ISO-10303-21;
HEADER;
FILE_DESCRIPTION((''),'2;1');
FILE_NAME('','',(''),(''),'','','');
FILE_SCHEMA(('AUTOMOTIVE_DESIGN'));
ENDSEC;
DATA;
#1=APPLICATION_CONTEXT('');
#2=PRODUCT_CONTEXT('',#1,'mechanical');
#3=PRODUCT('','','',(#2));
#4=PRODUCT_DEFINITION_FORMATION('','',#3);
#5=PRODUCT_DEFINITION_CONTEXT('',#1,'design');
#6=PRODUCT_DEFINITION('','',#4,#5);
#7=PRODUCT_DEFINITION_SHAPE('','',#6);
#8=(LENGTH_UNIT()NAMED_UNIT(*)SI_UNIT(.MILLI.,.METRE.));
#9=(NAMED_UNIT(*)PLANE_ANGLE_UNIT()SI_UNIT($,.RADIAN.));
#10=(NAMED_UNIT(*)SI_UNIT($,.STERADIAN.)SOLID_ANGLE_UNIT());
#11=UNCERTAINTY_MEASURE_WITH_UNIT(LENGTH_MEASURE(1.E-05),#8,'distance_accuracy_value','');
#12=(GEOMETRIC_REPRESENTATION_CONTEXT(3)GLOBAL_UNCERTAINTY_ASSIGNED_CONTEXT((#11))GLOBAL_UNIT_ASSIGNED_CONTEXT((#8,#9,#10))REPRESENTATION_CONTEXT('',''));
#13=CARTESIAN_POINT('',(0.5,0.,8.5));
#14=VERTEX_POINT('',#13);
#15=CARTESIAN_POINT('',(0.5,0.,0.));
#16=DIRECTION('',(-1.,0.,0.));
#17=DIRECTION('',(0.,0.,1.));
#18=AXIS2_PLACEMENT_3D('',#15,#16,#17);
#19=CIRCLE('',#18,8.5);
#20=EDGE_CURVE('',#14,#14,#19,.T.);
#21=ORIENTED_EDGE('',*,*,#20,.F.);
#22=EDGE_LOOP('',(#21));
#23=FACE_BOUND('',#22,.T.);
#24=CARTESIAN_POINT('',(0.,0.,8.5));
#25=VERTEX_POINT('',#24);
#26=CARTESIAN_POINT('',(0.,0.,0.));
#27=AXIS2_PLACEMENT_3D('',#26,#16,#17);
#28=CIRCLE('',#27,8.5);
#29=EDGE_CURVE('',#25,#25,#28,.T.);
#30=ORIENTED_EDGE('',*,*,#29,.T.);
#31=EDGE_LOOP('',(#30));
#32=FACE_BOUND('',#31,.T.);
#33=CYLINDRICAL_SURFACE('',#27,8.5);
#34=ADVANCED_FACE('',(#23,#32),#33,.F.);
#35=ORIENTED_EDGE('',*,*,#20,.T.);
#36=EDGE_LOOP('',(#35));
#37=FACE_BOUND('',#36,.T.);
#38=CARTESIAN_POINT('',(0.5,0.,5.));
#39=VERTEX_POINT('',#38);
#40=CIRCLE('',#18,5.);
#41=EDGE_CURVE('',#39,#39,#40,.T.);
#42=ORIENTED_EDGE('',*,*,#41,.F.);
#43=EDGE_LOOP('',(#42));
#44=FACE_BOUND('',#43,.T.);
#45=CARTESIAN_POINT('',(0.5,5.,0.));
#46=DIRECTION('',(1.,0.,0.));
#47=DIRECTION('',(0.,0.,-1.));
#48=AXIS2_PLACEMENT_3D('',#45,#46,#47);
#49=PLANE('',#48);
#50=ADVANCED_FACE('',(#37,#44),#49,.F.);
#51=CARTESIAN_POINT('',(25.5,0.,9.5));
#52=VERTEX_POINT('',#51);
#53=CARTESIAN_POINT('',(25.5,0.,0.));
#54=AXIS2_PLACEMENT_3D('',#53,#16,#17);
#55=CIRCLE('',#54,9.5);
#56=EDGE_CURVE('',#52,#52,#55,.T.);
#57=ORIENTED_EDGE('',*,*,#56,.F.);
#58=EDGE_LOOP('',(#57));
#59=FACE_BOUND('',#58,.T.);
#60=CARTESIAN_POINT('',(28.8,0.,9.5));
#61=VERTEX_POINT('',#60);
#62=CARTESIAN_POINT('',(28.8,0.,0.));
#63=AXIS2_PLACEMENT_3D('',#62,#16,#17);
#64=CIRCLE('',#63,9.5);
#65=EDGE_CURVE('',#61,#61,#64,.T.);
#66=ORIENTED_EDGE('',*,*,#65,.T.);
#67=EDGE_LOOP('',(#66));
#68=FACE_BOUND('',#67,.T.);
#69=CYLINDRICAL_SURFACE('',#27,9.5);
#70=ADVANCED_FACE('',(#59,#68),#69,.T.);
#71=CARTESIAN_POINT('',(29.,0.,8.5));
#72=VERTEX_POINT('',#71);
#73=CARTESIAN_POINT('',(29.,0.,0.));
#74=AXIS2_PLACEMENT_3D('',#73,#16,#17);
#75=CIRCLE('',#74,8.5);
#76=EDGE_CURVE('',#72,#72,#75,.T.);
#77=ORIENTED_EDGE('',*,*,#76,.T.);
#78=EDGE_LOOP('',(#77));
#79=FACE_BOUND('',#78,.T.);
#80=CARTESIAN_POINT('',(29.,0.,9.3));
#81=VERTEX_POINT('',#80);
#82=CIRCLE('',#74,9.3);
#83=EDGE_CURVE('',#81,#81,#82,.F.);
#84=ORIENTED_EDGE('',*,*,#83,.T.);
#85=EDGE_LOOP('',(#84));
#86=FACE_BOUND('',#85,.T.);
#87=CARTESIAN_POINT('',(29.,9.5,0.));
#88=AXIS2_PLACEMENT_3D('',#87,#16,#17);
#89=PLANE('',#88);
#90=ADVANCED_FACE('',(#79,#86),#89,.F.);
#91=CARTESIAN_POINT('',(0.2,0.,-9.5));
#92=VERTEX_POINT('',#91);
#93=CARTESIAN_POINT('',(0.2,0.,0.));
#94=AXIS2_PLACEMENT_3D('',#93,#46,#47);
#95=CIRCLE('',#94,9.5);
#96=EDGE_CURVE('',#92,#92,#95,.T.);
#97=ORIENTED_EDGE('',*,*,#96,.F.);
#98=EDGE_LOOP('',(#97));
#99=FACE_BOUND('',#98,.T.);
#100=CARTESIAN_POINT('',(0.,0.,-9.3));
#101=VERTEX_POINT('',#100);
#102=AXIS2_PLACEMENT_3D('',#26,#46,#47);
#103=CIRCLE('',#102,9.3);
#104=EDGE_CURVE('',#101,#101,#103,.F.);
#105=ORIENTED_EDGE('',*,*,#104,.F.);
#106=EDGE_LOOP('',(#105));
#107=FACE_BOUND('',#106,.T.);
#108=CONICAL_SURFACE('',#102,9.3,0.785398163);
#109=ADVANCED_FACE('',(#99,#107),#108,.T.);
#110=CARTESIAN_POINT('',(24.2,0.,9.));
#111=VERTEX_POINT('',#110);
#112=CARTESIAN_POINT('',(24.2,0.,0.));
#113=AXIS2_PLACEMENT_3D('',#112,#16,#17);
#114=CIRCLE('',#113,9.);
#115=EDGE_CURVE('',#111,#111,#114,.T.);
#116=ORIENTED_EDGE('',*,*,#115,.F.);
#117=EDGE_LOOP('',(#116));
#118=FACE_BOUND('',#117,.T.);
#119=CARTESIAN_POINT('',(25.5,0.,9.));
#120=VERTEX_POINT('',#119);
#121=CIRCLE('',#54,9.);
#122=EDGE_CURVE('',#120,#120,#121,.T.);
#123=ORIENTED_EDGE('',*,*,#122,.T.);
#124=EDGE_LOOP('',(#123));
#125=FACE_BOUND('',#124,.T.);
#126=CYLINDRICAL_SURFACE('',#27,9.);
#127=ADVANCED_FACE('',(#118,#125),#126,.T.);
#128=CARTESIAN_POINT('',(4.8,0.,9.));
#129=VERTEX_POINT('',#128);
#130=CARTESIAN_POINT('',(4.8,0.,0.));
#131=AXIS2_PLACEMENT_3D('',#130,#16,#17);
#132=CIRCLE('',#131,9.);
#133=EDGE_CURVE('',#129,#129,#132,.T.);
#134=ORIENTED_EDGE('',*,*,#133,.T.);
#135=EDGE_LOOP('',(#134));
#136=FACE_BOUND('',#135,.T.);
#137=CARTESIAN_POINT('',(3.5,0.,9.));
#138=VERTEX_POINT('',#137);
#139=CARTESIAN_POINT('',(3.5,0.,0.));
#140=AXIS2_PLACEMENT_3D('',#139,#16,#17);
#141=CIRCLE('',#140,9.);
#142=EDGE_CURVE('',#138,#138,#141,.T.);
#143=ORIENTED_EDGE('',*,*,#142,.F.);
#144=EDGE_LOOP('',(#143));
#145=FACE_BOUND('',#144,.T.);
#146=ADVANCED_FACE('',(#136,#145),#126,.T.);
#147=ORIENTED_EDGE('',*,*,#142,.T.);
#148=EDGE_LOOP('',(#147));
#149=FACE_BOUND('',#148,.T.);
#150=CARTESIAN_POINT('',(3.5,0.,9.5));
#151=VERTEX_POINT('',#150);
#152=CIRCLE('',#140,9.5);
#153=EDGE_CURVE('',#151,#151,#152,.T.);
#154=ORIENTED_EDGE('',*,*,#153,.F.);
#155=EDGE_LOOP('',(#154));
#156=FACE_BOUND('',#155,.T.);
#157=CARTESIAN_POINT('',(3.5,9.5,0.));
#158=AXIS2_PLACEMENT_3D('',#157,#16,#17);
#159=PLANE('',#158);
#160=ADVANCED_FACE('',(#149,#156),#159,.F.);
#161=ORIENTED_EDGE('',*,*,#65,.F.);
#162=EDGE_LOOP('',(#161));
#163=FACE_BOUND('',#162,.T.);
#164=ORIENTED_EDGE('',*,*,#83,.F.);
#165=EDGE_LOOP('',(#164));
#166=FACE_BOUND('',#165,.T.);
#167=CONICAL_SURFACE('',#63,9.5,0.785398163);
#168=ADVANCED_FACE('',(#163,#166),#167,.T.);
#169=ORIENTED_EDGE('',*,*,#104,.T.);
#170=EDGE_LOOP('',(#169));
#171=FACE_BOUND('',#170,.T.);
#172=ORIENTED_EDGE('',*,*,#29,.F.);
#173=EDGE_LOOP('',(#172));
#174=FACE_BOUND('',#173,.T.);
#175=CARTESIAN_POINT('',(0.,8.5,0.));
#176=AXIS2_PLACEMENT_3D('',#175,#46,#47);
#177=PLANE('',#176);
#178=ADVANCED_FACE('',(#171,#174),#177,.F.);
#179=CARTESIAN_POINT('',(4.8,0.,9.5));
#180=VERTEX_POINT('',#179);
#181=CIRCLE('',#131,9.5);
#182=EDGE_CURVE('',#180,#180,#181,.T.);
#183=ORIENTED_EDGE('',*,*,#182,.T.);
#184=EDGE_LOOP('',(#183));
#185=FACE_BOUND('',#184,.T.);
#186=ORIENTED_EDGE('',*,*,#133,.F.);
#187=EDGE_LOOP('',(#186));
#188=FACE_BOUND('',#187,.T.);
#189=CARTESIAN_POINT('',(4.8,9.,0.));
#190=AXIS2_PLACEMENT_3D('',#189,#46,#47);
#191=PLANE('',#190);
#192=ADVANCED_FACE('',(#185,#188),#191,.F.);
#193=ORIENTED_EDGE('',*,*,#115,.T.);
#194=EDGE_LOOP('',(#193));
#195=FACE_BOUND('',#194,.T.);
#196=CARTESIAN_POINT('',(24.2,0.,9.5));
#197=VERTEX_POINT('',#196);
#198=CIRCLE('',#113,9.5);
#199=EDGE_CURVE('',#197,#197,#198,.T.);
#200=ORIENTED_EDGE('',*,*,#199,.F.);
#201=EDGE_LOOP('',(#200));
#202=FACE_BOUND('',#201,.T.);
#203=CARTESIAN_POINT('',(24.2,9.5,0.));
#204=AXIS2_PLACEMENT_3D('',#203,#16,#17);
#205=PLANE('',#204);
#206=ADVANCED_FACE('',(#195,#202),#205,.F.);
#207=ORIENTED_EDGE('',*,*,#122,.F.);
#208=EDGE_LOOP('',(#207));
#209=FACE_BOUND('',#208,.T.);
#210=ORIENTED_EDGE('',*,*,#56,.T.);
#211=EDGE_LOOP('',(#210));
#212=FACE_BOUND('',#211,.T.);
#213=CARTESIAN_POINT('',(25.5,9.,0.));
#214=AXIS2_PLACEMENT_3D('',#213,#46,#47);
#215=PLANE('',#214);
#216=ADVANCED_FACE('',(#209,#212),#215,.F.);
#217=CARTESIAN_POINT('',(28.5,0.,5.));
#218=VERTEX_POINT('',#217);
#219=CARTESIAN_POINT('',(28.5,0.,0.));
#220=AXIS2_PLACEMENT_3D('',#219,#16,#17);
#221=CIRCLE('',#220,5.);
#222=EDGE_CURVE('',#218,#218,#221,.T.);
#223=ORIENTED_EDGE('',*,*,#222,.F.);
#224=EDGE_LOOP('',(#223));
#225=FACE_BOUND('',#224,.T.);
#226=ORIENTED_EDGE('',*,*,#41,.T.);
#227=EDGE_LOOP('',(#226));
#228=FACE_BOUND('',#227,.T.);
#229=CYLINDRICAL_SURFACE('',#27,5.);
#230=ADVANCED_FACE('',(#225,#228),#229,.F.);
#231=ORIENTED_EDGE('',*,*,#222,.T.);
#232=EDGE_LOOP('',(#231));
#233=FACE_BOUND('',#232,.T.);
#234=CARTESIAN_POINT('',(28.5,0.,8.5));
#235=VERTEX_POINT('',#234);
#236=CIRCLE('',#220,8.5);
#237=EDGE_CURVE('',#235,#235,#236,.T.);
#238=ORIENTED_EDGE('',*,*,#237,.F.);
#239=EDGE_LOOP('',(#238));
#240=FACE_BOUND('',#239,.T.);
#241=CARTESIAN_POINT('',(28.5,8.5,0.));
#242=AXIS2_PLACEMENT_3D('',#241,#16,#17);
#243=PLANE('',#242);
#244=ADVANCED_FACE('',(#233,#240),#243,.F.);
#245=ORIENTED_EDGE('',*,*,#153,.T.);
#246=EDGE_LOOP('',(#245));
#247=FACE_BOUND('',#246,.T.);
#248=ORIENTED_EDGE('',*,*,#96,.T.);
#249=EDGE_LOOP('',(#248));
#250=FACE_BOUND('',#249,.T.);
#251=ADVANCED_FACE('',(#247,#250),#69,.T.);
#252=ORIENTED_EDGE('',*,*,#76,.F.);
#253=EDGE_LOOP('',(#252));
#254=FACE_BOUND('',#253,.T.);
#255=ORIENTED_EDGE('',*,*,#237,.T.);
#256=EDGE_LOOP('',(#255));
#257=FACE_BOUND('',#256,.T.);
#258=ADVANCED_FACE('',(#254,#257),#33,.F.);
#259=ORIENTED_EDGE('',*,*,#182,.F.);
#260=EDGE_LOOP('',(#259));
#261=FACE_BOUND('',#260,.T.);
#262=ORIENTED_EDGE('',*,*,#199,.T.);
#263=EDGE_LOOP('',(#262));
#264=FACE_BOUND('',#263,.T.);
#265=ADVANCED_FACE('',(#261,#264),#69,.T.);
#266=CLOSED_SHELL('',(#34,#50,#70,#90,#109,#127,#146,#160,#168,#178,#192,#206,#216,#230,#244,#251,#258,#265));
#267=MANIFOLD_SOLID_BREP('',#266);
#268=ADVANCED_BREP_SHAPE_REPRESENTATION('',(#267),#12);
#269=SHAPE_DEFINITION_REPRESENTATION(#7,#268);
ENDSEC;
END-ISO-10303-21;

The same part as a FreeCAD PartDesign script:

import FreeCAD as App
import Part
import Sketcher

V = App.Vector
Q = App.Units.Quantity


def edges_at(feature, points):
    """Names of the edges that pass closest to the given points."""
    edges = feature.Shape.Edges
    near = lambda p: min(range(len(edges)), key=lambda i: edges[i].distToShape(Part.Vertex(*p))[0])
    return sorted({f"Edge{near(p) + 1}" for p in points})


def add_polygon(sketch, points):
    """Adds a closed chain of lines whose ends are joined by coincident constraints."""
    first, n = sketch.GeometryCount, len(points)
    for a, b in zip(points, points[1:] + points[:1]):
        sketch.addGeometry(Part.LineSegment(App.Vector(*a, 0), App.Vector(*b, 0)), False)
    for i in range(n):
        sketch.addConstraint(Sketcher.Constraint("Coincident", first + i, 2, first + (i + 1) % n, 1))

doc = App.newDocument("Part")
body = doc.addObject("PartDesign::Body", "Body")

sketch1 = body.newObject("Sketcher::SketchObject", "Sketch")
sketch1.AttachmentSupport = (doc.getObject("XY_Plane"), [""])
sketch1.MapMode = "FlatFace"
add_polygon(sketch1, [(0.5, 8.5), (0.5, 5), (28.5, 5), (28.5, 8.5), (29, 8.5), (29, 9.5), (25.5, 9.5), (25.5, 9), (24.2, 9), (24.2, 9.5), (4.8, 9.5), (4.8, 9), (3.5, 9), (3.5, 9.5), (0, 9.5), (0, 8.5)])
sketch1.addConstraint([
    Sketcher.Constraint("Vertical", 0),
    Sketcher.Constraint("Horizontal", 1),
    Sketcher.Constraint("Vertical", 2),
    Sketcher.Constraint("Horizontal", 3),
    Sketcher.Constraint("Vertical", 4),
    Sketcher.Constraint("Horizontal", 5),
    Sketcher.Constraint("Vertical", 6),
    Sketcher.Constraint("Horizontal", 7),
    Sketcher.Constraint("Vertical", 8),
    Sketcher.Constraint("Horizontal", 9),
    Sketcher.Constraint("Vertical", 10),
    Sketcher.Constraint("Horizontal", 11),
    Sketcher.Constraint("Vertical", 12),
    Sketcher.Constraint("Horizontal", 13),
    Sketcher.Constraint("Vertical", 14),
    Sketcher.Constraint("Horizontal", 15),
    Sketcher.Constraint("PointOnObject", 13, 2, -2),
    Sketcher.Constraint("Horizontal", 5, 2, 8, 2),
    Sketcher.Constraint("Horizontal", 7, 2, 10, 2),
    Sketcher.Constraint("Horizontal", 9, 2, 12, 2),
    Sketcher.Constraint("Horizontal", 3, 2, 14, 2),
    Sketcher.Constraint("Equal", 7, 11),
    Sketcher.Constraint("Equal", 5, 13),
    Sketcher.Constraint("Equal", 3, 15),
    Sketcher.Constraint("Equal", 13, 0),
    Sketcher.Constraint("Equal", 15, 6),
    Sketcher.Constraint("DistanceX", 1, 1, 1, 2, Q("28 mm")),
    Sketcher.Constraint("DistanceY", 4, 1, 4, 2, Q("1 mm")),
    Sketcher.Constraint("DistanceX", 3, 1, 3, 2, Q("0.5 mm")),
    Sketcher.Constraint("DistanceX", 5, 2, 5, 1, Q("3.5 mm")),
    Sketcher.Constraint("DistanceX", 7, 2, 7, 1, Q("1.3 mm")),
    Sketcher.Constraint("DistanceY", -1, 1, 0, 2, Q("5 mm")),
])
revolution = body.newObject("PartDesign::Revolution", "Revolution")
revolution.Profile = sketch1
revolution.ReferenceAxis = (sketch1, ["H_Axis"])
revolution.Angle = 360
doc.recompute()

chamfer = body.newObject("PartDesign::Chamfer", "Chamfer")
chamfer.Base = (revolution, edges_at(revolution, [(29, 0, -9.5), (0, 0, -9.5)]))
chamfer.Size = 0.2

doc.recompute()
